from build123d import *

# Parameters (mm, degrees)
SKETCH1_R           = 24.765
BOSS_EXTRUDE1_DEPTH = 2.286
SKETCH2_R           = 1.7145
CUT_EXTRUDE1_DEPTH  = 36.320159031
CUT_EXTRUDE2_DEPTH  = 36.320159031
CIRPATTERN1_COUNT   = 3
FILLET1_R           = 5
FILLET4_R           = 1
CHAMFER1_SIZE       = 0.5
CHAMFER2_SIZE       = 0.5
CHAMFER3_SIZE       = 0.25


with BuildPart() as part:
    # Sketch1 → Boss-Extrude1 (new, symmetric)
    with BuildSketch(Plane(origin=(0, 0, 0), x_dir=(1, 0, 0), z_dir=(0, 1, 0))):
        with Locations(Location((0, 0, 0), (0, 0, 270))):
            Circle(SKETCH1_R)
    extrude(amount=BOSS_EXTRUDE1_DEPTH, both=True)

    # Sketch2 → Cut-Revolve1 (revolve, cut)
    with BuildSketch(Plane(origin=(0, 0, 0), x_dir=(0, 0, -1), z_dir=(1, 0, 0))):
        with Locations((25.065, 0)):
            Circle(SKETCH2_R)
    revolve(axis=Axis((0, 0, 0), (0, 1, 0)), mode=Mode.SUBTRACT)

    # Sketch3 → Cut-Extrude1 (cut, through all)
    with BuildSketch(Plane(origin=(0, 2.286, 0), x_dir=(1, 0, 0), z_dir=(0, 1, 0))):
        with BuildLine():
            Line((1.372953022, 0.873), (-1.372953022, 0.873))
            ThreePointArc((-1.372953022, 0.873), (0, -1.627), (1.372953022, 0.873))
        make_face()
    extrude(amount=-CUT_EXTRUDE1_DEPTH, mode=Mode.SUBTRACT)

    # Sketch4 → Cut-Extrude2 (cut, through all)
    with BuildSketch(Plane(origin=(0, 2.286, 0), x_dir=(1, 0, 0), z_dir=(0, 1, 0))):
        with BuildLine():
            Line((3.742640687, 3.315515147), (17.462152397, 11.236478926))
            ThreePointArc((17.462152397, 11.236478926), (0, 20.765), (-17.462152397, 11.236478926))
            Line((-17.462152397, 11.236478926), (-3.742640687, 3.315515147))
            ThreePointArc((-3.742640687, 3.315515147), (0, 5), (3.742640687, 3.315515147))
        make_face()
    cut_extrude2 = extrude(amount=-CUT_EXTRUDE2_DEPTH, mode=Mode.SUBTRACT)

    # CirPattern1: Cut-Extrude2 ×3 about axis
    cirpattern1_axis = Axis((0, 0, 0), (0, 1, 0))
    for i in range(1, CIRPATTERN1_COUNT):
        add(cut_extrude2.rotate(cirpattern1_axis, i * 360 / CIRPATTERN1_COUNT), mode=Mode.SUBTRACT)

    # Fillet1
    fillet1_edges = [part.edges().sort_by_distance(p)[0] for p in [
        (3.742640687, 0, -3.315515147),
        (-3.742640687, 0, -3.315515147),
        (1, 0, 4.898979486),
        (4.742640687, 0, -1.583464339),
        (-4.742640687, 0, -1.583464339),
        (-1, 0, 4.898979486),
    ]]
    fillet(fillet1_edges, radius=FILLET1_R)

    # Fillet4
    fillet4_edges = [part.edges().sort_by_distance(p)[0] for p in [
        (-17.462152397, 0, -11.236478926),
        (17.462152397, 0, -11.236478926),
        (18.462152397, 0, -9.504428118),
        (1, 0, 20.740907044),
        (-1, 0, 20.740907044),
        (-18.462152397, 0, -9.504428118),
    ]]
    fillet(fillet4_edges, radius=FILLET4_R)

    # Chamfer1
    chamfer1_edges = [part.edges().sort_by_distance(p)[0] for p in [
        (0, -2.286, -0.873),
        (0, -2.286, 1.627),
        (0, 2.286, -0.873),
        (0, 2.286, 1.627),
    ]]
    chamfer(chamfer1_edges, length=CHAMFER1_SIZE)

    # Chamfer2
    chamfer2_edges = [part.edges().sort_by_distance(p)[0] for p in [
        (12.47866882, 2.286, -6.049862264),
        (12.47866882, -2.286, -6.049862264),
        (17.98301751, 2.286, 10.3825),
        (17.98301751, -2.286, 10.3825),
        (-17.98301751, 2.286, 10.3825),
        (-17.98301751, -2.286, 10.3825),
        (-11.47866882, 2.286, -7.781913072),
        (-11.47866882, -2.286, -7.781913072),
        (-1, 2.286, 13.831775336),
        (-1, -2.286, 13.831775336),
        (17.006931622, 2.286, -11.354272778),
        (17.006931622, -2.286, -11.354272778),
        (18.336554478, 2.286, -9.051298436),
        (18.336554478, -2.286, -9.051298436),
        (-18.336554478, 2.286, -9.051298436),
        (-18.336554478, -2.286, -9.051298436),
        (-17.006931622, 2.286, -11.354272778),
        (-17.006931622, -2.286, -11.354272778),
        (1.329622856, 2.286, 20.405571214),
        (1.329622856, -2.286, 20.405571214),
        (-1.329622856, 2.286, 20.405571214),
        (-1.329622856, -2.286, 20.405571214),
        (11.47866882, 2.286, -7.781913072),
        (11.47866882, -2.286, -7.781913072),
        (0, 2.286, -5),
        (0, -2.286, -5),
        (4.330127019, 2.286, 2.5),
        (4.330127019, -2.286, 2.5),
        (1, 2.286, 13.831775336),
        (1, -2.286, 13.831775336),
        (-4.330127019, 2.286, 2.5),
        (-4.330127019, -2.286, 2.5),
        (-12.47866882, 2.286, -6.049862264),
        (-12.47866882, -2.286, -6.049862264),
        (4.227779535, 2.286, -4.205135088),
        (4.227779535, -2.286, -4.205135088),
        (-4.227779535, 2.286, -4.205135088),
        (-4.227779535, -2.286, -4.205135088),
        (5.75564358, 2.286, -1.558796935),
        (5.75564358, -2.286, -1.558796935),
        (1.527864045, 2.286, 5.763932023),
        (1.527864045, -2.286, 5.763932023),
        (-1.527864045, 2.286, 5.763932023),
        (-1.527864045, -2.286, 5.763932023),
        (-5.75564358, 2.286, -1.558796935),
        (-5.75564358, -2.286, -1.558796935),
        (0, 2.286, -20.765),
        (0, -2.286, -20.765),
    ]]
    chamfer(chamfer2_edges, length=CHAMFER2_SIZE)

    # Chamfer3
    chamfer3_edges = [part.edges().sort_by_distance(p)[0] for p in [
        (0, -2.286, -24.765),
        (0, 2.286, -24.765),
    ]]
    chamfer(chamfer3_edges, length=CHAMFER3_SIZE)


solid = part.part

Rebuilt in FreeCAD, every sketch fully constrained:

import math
import FreeCAD as App
import Part
import Sketcher
from FreeCAD import Vector
Q = App.Units.Quantity


def edges_at(feature, points):
    """Names of the edges that pass closest to the given points."""
    edges = feature.Shape.Edges
    near = lambda p: min(range(len(edges)), key=lambda i: edges[i].distToShape(Part.Vertex(*p))[0])
    return sorted({f"Edge{near(p) + 1}" for p in points})

doc = App.newDocument("Part")
body = doc.addObject("PartDesign::Body", "Body")

sketch1 = body.newObject("Sketcher::SketchObject", "Sketch")
sketch1.AttachmentSupport = (doc.getObject("XZ_Plane"), [""])
sketch1.MapMode = "FlatFace"
sketch1.addGeometry(Part.Circle(Vector(0, 0, 0), Vector(0, 0, 1), 25), False)
sketch1.addConstraint([
    Sketcher.Constraint("Coincident", 0, 3, -1, 1),
    Sketcher.Constraint("Diameter", 0, Q("49.53 mm")),
])
pad1 = body.newObject("PartDesign::Pad", "Pad")
pad1.Profile = sketch1
pad1.Length = 4.572
pad1.Midplane = True

sketch2 = body.newObject("Sketcher::SketchObject", "Sketch001")
sketch2.AttachmentSupport = (doc.getObject("YZ_Plane"), [""])
sketch2.MapMode = "FlatFace"
sketch2.addGeometry(Part.Circle(Vector(0, -25.1, 0), Vector(0, 0, 1), 1.7), False)
sketch2.addConstraint([
    Sketcher.Constraint("PointOnObject", 0, 3, -2),
    Sketcher.Constraint("Diameter", 0, Q("3.429 mm")),
    Sketcher.Constraint("DistanceY", 0, 3, -1, 1, Q("25.065 mm")),
])
groove = body.newObject("PartDesign::Groove", "Groove")
groove.Profile = sketch2
groove.ReferenceAxis = (sketch2, ["H_Axis"])
groove.Angle = 360

sketch3 = body.newObject("Sketcher::SketchObject", "Sketch002")
sketch3.AttachmentSupport = (doc.getObject("XZ_Plane"), [""])
sketch3.MapMode = "FlatFace"
sketch3.AttachmentOffset = App.Placement(Vector(0, 0, -2.286), App.Rotation())
sketch3.addGeometry([
    Part.LineSegment(Vector(1.4, -0.9, 0), Vector(-1.4, -0.9, 0)),
    Part.ArcOfCircle(Part.Circle(Vector(0, 0, 0), Vector(0, 0, 1), 1.6), math.radians(-32), math.radians(212)),
], False)
sketch3.addConstraint([
    Sketcher.Constraint("Coincident", 0, 1, 1, 1),
    Sketcher.Constraint("Coincident", 1, 2, 0, 2),
    Sketcher.Constraint("Horizontal", 0),
    Sketcher.Constraint("Coincident", 1, 3, -1, 1),
    Sketcher.Constraint("Radius", 1, Q("1.627 mm")),
    Sketcher.Constraint("DistanceY", 0, 1, -1, 1, Q("0.873 mm")),
])
pocket1 = body.newObject("PartDesign::Pocket", "Pocket")
pocket1.Profile = sketch3
pocket1.Type = "ThroughAll"
pocket1.Reversed = True

sketch4 = body.newObject("Sketcher::SketchObject", "Sketch003")
sketch4.AttachmentSupport = (doc.getObject("XZ_Plane"), [""])
sketch4.MapMode = "FlatFace"
sketch4.AttachmentOffset = App.Placement(Vector(0, 0, -2.286), App.Rotation())
sketch4.addGeometry([
    Part.LineSegment(Vector(4, -3, 0), Vector(17, -11, 0)),
    Part.ArcOfCircle(Part.Circle(Vector(0, 0, 0), Vector(0, 0, 1), 21), math.radians(-147), math.radians(-33)),
    Part.LineSegment(Vector(-17, -11, 0), Vector(-4, -3, 0)),
    Part.ArcOfCircle(Part.Circle(Vector(0, 0, 0), Vector(0, 0, 1), 5), math.radians(-138), math.radians(-42)),
], False)
sketch4.addConstraint([
    Sketcher.Constraint("Coincident", 0, 2, 1, 2),
    Sketcher.Constraint("Coincident", 1, 1, 2, 1),
    Sketcher.Constraint("Coincident", 2, 2, 3, 1),
    Sketcher.Constraint("Coincident", 3, 2, 0, 1),
    Sketcher.Constraint("Coincident", 1, 3, -1, 1),
    Sketcher.Constraint("Coincident", 3, 3, -1, 1),
    Sketcher.Constraint("Horizontal", 0, 2, 1, 1),
    Sketcher.Constraint("Horizontal", 2, 2, 3, 2),
    Sketcher.Constraint("Radius", 3, Q("5 mm")),
    Sketcher.Constraint("Angle", 0, Q("-30 deg")),
    Sketcher.Constraint("Radius", 1, Q("20.765 mm")),
    Sketcher.Constraint("DistanceY", 0, 2, -1, 1, Q("11.236479 mm")),
])
pocket2 = body.newObject("PartDesign::Pocket", "Pocket001")
pocket2.Profile = sketch4
pocket2.Type = "ThroughAll"
pocket2.Reversed = True
doc.recompute()

polarpattern = body.newObject("PartDesign::PolarPattern", "PolarPattern")
polarpattern.Originals = [pocket2]
polarpattern.Axis = (doc.getObject("Y_Axis"), [""])
polarpattern.Angle = 360
polarpattern.Occurrences = 3
body.Tip = polarpattern
doc.recompute()

fillet = body.newObject("PartDesign::Fillet", "Fillet")
fillet.Base = (polarpattern, edges_at(polarpattern, [
    (3.743, 0, -3.316),
    (-3.743, 0, -3.316),
    (1, 0, 4.899),
    (4.743, 0, -1.583),
    (-4.743, 0, -1.583),
    (-1, 0, 4.899),
]))
fillet.Radius = 5
doc.recompute()

fillet2 = body.newObject("PartDesign::Fillet", "Fillet001")
fillet2.Base = (fillet, edges_at(fillet, [
    (-17.462, 0, -11.236),
    (17.462, 0, -11.236),
    (18.462, 0, -9.504),
    (1, 0, 20.741),
    (-1, 0, 20.741),
    (-18.462, 0, -9.504),
]))
fillet2.Radius = 1
doc.recompute()

chamfer = body.newObject("PartDesign::Chamfer", "Chamfer")
chamfer.Base = (fillet2, edges_at(fillet2, [
    (0, -2.286, -0.873),
    (0, -2.286, 1.627),
    (0, 2.286, -0.873),
    (0, 2.286, 1.627),
]))
chamfer.Size = 0.5
doc.recompute()

chamfer2 = body.newObject("PartDesign::Chamfer", "Chamfer001")
chamfer2.Base = (chamfer, edges_at(chamfer, [
    (12.479, 2.286, -6.05),
    (12.479, -2.286, -6.05),
    (17.983, 2.286, 10.383),
    (17.983, -2.286, 10.383),
    (-17.983, 2.286, 10.383),
    (-17.983, -2.286, 10.383),
    (-11.479, 2.286, -7.782),
    (-11.479, -2.286, -7.782),
    (-1, 2.286, 13.832),
    (-1, -2.286, 13.832),
    (17.007, 2.286, -11.354),
    (17.007, -2.286, -11.354),
    (18.337, 2.286, -9.051),
    (18.337, -2.286, -9.051),
    (-18.337, 2.286, -9.051),
    (-18.337, -2.286, -9.051),
    (-17.007, 2.286, -11.354),
    (-17.007, -2.286, -11.354),
    (1.33, 2.286, 20.406),
    (1.33, -2.286, 20.406),
    (-1.33, 2.286, 20.406),
    (-1.33, -2.286, 20.406),
    (11.479, 2.286, -7.782),
    (11.479, -2.286, -7.782),
    (0, 2.286, -5),
    (0, -2.286, -5),
    (4.33, 2.286, 2.5),
    (4.33, -2.286, 2.5),
    (1, 2.286, 13.832),
    (1, -2.286, 13.832),
    (-4.33, 2.286, 2.5),
    (-4.33, -2.286, 2.5),
    (-12.479, 2.286, -6.05),
    (-12.479, -2.286, -6.05),
    (4.228, 2.286, -4.205),
    (4.228, -2.286, -4.205),
    (-4.228, 2.286, -4.205),
    (-4.228, -2.286, -4.205),
    (5.756, 2.286, -1.559),
    (5.756, -2.286, -1.559),
    (1.528, 2.286, 5.764),
    (1.528, -2.286, 5.764),
    (-1.528, 2.286, 5.764),
    (-1.528, -2.286, 5.764),
    (-5.756, 2.286, -1.559),
    (-5.756, -2.286, -1.559),
    (0, 2.286, -20.765),
    (0, -2.286, -20.765),
]))
chamfer2.Size = 0.5
doc.recompute()

chamfer3 = body.newObject("PartDesign::Chamfer", "Chamfer002")
chamfer3.Base = (chamfer2, edges_at(chamfer2, [(0, -2.286, -24.765), (0, 2.286, -24.765)]))
chamfer3.Size = 0.25

doc.recompute()
